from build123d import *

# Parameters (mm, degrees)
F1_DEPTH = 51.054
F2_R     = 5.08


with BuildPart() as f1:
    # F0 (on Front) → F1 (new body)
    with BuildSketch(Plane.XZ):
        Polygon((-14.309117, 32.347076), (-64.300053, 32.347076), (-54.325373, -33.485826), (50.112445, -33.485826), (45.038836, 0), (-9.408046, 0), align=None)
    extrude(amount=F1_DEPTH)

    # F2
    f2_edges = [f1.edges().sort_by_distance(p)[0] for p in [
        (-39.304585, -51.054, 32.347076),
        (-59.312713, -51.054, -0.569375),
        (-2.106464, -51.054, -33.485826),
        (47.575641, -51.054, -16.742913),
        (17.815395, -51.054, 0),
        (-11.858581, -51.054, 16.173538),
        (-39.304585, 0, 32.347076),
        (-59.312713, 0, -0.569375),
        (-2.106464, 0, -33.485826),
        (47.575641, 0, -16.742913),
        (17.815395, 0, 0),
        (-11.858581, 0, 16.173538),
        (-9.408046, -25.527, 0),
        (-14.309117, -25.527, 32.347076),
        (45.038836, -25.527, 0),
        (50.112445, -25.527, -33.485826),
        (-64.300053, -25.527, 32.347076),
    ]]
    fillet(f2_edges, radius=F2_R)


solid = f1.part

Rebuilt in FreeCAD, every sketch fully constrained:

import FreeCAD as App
import Part
import Sketcher
from FreeCAD import Vector


def edges_at(feature, points):
    """Names of the edges that pass closest to the given points."""
    edges = feature.Shape.Edges
    near = lambda p: min(range(len(edges)), key=lambda i: edges[i].distToShape(Part.Vertex(*p))[0])
    return sorted({f"Edge{near(p) + 1}" for p in points})

doc = App.newDocument("Part")
params = doc.addObject("Spreadsheet::Sheet", "Params")
for row, (alias, value) in enumerate([
    ("pad1_length", "2.01 in"),
    ("fillet_radius", "0.2 in"),
], start=1):
    params.set(f"A{row}", alias)
    params.set(f"B{row}", "=" + value)
    params.setAlias(f"B{row}", alias)

body = doc.addObject("PartDesign::Body", "Body")

# Sketch on XZ plane
sketch1 = body.newObject("Sketcher::SketchObject", "Sketch")
sketch1.AttachmentSupport = (doc.getObject("XZ_Plane"), [""])
sketch1.MapMode = "FlatFace"
sketch1.addGeometry(Part.LineSegment(Vector(-14.309117, 32.347076, 0), Vector(-64.300053, 32.347076, 0)), False)
sketch1.addGeometry(Part.LineSegment(Vector(-64.300053, 32.347076, 0), Vector(-54.325373, -33.485826, 0)), False)
sketch1.addGeometry(Part.LineSegment(Vector(-54.325373, -33.485826, 0), Vector(50.112445, -33.485826, 0)), False)
sketch1.addGeometry(Part.LineSegment(Vector(50.112445, -33.485826, 0), Vector(45.038836, 0, 0)), False)
sketch1.addGeometry(Part.LineSegment(Vector(45.038836, 0, 0), Vector(-9.408046, 0, 0)), False)
sketch1.addGeometry(Part.LineSegment(Vector(-9.408046, 0, 0), Vector(-14.309117, 32.347076, 0)), False)
sketch1.addConstraint(Sketcher.Constraint("Coincident", 0, 2, 1, 1))
sketch1.addConstraint(Sketcher.Constraint("Coincident", 1, 2, 2, 1))
sketch1.addConstraint(Sketcher.Constraint("Coincident", 2, 2, 3, 1))
sketch1.addConstraint(Sketcher.Constraint("Coincident", 3, 2, 4, 1))
sketch1.addConstraint(Sketcher.Constraint("Coincident", 4, 2, 5, 1))
sketch1.addConstraint(Sketcher.Constraint("Coincident", 5, 2, 0, 1))
sketch1.addConstraint(Sketcher.Constraint("Horizontal", 0))
sketch1.addConstraint(Sketcher.Constraint("Horizontal", 2))
sketch1.addConstraint(Sketcher.Constraint("Horizontal", 4))
sketch1.addConstraint(Sketcher.Constraint("PointOnObject", 3, 2, -1))
sketch1.addConstraint(Sketcher.Constraint("Parallel", 1, 3))
sketch1.addConstraint(Sketcher.Constraint("Parallel", 3, 5))
sketch1.addConstraint(Sketcher.Constraint("DistanceX", 0, 2, 2, 2, 114.412498))
sketch1.addConstraint(Sketcher.Constraint("Distance", 1, 66.584272))
sketch1.addConstraint(Sketcher.Constraint("Distance", 3, 33.868009))
sketch1.addConstraint(Sketcher.Constraint("DistanceX", 0, 2, 0, 1, 49.990936))
sketch1.addConstraint(Sketcher.Constraint("DistanceX", 2, 1, 2, 2, 104.437818))
sketch1.addConstraint(Sketcher.Constraint("DistanceX", 0, 2, -1, 1, 64.300053))
pad1 = body.newObject("PartDesign::Pad", "Pad")
pad1.Profile = sketch1
pad1.setExpression("Length", "Params.pad1_length")
doc.recompute()

fillet = body.newObject("PartDesign::Fillet", "Fillet")
fillet.Base = (pad1, edges_at(pad1, [
    (-39.305, -51.054, 32.347),
    (-59.313, -51.054, -0.569),
    (-2.106, -51.054, -33.486),
    (47.576, -51.054, -16.743),
    (17.815, -51.054, 0),
    (-11.859, -51.054, 16.174),
    (-39.305, 0, 32.347),
    (-59.313, 0, -0.569),
    (-2.106, 0, -33.486),
    (47.576, 0, -16.743),
    (17.815, 0, 0),
    (-11.859, 0, 16.174),
    (-9.408, -25.527, 0),
    (-14.309, -25.527, 32.347),
    (45.039, -25.527, 0),
    (50.112, -25.527, -33.486),
    (-64.3, -25.527, 32.347),
]))
fillet.setExpression("Radius", "Params.fillet_radius")

doc.recompute()
